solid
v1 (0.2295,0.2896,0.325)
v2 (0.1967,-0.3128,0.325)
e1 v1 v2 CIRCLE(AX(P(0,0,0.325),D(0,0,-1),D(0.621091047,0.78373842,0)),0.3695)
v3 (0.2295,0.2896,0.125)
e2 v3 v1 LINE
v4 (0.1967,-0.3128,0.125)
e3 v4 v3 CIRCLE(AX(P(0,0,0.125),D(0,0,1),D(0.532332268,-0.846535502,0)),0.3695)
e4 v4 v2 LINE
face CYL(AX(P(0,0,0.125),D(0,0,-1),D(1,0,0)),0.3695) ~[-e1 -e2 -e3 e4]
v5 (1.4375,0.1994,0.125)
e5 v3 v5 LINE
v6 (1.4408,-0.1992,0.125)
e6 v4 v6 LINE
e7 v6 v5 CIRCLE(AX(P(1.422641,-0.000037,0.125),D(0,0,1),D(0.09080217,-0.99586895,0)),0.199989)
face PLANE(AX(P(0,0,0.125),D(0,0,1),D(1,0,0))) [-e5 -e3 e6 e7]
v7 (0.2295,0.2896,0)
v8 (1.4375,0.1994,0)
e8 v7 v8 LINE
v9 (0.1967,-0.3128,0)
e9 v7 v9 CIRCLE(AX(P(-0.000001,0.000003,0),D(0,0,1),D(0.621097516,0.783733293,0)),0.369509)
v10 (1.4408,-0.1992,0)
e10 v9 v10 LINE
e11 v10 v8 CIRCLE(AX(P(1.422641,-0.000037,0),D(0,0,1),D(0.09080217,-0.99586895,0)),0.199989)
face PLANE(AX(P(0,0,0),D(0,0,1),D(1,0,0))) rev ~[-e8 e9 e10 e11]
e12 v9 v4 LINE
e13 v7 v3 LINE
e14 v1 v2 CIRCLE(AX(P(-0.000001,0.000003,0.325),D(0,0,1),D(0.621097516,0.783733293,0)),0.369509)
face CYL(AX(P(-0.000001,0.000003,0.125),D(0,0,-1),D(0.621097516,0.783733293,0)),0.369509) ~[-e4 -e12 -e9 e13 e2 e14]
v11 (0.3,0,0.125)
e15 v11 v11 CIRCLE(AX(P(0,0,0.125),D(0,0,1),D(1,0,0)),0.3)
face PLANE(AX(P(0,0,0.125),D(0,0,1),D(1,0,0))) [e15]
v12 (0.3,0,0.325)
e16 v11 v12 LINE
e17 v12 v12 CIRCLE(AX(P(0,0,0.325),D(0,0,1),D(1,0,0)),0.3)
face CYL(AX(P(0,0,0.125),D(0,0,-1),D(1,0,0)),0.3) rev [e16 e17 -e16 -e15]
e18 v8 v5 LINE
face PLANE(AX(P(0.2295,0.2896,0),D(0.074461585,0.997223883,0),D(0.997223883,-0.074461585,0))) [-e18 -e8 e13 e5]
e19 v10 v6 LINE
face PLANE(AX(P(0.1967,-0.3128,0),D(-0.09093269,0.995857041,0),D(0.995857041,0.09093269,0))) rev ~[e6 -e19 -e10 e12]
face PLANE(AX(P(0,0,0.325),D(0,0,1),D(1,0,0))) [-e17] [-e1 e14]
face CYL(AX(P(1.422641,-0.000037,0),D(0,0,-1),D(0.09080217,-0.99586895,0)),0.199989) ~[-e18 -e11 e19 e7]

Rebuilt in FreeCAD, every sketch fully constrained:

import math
import FreeCAD as App
import Part
import Sketcher

V = App.Vector
Q = App.Units.Quantity

doc = App.newDocument("Part")
body = doc.addObject("PartDesign::Body", "Body")

sketch1 = body.newObject("Sketcher::SketchObject", "Sketch")
sketch1.AttachmentSupport = (doc.getObject("XY_Plane"), [""])
sketch1.MapMode = "FlatFace"
sketch1.addGeometry([
    Part.LineSegment(V(1.44, 0.2, 0), V(0.23, 0.29, 0)),
    Part.ArcOfCircle(Part.Circle(V(0, 0, 0), V(0, 0, 1), 0.37), math.radians(52), math.radians(302)),
    Part.LineSegment(V(0.2, -0.31, 0), V(1.44, -0.2, 0)),
    Part.ArcOfCircle(Part.Circle(V(1.42, 0, 0), V(0, 0, 1), 0.2), math.radians(-85), math.radians(86)),
], False)
sketch1.addConstraint([
    Sketcher.Constraint("Coincident", 0, 2, 1, 1),
    Sketcher.Constraint("Coincident", 1, 2, 2, 1),
    Sketcher.Constraint("Tangent", 2, 2, 3, 1),
    Sketcher.Constraint("Tangent", 3, 2, 0, 1),
    Sketcher.Constraint("Coincident", 1, 3, -1, 1),
    Sketcher.Constraint("PointOnObject", 3, 3, -1),
    Sketcher.Constraint("Radius", 3, Q("0.2 mm")),
    Sketcher.Constraint("Angle", 0, Q("175.7297 deg")),
    Sketcher.Constraint("Radius", 1, Q("0.3695 mm")),
    Sketcher.Constraint("DistanceX", 0, 2, 3, 3, Q("1.193 mm")),
    Sketcher.Constraint("DistanceX", 1, 2, 3, 3, Q("1.226 mm")),
])
pad1 = body.newObject("PartDesign::Pad", "Pad")
pad1.Profile = sketch1
pad1.Length = 0.125

sketch2 = body.newObject("Sketcher::SketchObject", "Sketch001")
sketch2.AttachmentSupport = (doc.getObject("XY_Plane"), [""])
sketch2.MapMode = "FlatFace"
sketch2.AttachmentOffset = App.Placement(V(0, 0, 0.125), App.Rotation())
sketch2.addGeometry([
    Part.ArcOfCircle(Part.Circle(V(0, 0, 0), V(0, 0, 1), 0.37), math.radians(-58), math.radians(52)),
    Part.ArcOfCircle(Part.Circle(V(0, 0, 0), V(0, 0, 1), 0.37), math.radians(52), math.radians(302)),
    Part.Circle(V(0, 0, 0), V(0, 0, 1), 0.3),
], False)
sketch2.addConstraint([
    Sketcher.Constraint("Tangent", 0, 1, 1, 2),
    Sketcher.Constraint("Coincident", 1, 1, 0, 2),
    Sketcher.Constraint("Coincident", 0, 3, -1, 1),
    Sketcher.Constraint("Coincident", 2, 3, -1, 1),
    Sketcher.Constraint("Diameter", 2, Q("0.6 mm")),
    Sketcher.Constraint("Radius", 0, Q("0.3695 mm")),
    Sketcher.Constraint("DistanceX", -1, 1, 0, 1, Q("0.1967 mm")),
    Sketcher.Constraint("DistanceX", -1, 1, 1, 1, Q("0.2295 mm")),
])
pad2 = body.newObject("PartDesign::Pad", "Pad001")
pad2.Profile = sketch2
pad2.Length = 0.2

doc.recompute()
